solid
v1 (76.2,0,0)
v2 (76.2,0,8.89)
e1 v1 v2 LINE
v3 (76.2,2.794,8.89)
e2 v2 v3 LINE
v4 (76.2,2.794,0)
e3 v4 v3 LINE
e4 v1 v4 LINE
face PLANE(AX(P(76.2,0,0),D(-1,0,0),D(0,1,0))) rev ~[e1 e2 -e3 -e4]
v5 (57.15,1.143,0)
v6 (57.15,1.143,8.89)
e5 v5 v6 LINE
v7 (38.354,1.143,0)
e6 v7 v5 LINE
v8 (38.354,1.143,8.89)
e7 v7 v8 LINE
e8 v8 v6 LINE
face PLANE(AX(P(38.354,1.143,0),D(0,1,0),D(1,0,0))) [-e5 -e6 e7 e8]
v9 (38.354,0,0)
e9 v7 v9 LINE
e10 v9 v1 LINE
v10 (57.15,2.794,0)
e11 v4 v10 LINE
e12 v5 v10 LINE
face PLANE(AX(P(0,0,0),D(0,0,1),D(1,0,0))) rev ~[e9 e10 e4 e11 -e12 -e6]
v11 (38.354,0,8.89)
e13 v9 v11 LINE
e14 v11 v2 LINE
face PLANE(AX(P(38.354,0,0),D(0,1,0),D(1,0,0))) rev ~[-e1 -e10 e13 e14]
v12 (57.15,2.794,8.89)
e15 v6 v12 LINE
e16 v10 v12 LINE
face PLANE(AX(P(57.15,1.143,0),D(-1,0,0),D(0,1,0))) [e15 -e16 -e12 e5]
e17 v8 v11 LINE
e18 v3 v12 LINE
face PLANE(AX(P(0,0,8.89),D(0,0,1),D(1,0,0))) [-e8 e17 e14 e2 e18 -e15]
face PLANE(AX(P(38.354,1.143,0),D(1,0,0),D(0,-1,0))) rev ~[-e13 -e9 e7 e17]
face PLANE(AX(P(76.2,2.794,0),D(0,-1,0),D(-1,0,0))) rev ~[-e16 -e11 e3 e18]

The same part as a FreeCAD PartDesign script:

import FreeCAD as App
import Part
import Sketcher
from FreeCAD import Vector
Q = App.Units.Quantity

doc = App.newDocument("Part")
body = doc.addObject("PartDesign::Body", "Body")

# Sketch on XY plane
sketch1 = body.newObject("Sketcher::SketchObject", "Sketch")
sketch1.AttachmentSupport = (doc.getObject("XY_Plane"), [""])
sketch1.MapMode = "FlatFace"
sketch1.addGeometry([
    Part.LineSegment(Vector(38.354, 1.143, 0), Vector(38.354, 0, 0)),  # 0
    Part.LineSegment(Vector(38.354, 0, 0), Vector(76.2, 0, 0)),  # 1
    Part.LineSegment(Vector(76.2, 0, 0), Vector(76.2, 2.794, 0)),  # 2
    Part.LineSegment(Vector(76.2, 2.794, 0), Vector(57.15, 2.794, 0)),  # 3
    Part.LineSegment(Vector(57.15, 2.794, 0), Vector(57.15, 1.143, 0)),  # 4
    Part.LineSegment(Vector(57.15, 1.143, 0), Vector(38.354, 1.143, 0)),  # 5
], False)
sketch1.addConstraint([
    Sketcher.Constraint("Coincident", 0, 2, 1, 1),
    Sketcher.Constraint("Coincident", 1, 2, 2, 1),
    Sketcher.Constraint("Coincident", 2, 2, 3, 1),
    Sketcher.Constraint("Coincident", 3, 2, 4, 1),
    Sketcher.Constraint("Coincident", 4, 2, 5, 1),
    Sketcher.Constraint("Coincident", 5, 2, 0, 1),
    Sketcher.Constraint("Vertical", 0),
    Sketcher.Constraint("Horizontal", 1),
    Sketcher.Constraint("Vertical", 2),
    Sketcher.Constraint("Horizontal", 3),
    Sketcher.Constraint("Vertical", 4),
    Sketcher.Constraint("Horizontal", 5),
    Sketcher.Constraint("PointOnObject", 0, 2, -1),
    Sketcher.Constraint("DistanceX", -1, 1, 1, 2, Q("3 in")),
    Sketcher.Constraint("DistanceX", 1, 1, 1, 2, Q("1.49 in")),
    Sketcher.Constraint("DistanceX", 3, 2, 3, 1, Q("0.75 in")),
    Sketcher.Constraint("DistanceY", 2, 1, 2, 2, Q("0.11 in")),
    Sketcher.Constraint("DistanceY", 0, 2, 0, 1, Q("0.045 in")),
])
pad1 = body.newObject("PartDesign::Pad", "Pad")
pad1.Profile = sketch1
pad1.Length = Q("0.35 in")

doc.recompute()
